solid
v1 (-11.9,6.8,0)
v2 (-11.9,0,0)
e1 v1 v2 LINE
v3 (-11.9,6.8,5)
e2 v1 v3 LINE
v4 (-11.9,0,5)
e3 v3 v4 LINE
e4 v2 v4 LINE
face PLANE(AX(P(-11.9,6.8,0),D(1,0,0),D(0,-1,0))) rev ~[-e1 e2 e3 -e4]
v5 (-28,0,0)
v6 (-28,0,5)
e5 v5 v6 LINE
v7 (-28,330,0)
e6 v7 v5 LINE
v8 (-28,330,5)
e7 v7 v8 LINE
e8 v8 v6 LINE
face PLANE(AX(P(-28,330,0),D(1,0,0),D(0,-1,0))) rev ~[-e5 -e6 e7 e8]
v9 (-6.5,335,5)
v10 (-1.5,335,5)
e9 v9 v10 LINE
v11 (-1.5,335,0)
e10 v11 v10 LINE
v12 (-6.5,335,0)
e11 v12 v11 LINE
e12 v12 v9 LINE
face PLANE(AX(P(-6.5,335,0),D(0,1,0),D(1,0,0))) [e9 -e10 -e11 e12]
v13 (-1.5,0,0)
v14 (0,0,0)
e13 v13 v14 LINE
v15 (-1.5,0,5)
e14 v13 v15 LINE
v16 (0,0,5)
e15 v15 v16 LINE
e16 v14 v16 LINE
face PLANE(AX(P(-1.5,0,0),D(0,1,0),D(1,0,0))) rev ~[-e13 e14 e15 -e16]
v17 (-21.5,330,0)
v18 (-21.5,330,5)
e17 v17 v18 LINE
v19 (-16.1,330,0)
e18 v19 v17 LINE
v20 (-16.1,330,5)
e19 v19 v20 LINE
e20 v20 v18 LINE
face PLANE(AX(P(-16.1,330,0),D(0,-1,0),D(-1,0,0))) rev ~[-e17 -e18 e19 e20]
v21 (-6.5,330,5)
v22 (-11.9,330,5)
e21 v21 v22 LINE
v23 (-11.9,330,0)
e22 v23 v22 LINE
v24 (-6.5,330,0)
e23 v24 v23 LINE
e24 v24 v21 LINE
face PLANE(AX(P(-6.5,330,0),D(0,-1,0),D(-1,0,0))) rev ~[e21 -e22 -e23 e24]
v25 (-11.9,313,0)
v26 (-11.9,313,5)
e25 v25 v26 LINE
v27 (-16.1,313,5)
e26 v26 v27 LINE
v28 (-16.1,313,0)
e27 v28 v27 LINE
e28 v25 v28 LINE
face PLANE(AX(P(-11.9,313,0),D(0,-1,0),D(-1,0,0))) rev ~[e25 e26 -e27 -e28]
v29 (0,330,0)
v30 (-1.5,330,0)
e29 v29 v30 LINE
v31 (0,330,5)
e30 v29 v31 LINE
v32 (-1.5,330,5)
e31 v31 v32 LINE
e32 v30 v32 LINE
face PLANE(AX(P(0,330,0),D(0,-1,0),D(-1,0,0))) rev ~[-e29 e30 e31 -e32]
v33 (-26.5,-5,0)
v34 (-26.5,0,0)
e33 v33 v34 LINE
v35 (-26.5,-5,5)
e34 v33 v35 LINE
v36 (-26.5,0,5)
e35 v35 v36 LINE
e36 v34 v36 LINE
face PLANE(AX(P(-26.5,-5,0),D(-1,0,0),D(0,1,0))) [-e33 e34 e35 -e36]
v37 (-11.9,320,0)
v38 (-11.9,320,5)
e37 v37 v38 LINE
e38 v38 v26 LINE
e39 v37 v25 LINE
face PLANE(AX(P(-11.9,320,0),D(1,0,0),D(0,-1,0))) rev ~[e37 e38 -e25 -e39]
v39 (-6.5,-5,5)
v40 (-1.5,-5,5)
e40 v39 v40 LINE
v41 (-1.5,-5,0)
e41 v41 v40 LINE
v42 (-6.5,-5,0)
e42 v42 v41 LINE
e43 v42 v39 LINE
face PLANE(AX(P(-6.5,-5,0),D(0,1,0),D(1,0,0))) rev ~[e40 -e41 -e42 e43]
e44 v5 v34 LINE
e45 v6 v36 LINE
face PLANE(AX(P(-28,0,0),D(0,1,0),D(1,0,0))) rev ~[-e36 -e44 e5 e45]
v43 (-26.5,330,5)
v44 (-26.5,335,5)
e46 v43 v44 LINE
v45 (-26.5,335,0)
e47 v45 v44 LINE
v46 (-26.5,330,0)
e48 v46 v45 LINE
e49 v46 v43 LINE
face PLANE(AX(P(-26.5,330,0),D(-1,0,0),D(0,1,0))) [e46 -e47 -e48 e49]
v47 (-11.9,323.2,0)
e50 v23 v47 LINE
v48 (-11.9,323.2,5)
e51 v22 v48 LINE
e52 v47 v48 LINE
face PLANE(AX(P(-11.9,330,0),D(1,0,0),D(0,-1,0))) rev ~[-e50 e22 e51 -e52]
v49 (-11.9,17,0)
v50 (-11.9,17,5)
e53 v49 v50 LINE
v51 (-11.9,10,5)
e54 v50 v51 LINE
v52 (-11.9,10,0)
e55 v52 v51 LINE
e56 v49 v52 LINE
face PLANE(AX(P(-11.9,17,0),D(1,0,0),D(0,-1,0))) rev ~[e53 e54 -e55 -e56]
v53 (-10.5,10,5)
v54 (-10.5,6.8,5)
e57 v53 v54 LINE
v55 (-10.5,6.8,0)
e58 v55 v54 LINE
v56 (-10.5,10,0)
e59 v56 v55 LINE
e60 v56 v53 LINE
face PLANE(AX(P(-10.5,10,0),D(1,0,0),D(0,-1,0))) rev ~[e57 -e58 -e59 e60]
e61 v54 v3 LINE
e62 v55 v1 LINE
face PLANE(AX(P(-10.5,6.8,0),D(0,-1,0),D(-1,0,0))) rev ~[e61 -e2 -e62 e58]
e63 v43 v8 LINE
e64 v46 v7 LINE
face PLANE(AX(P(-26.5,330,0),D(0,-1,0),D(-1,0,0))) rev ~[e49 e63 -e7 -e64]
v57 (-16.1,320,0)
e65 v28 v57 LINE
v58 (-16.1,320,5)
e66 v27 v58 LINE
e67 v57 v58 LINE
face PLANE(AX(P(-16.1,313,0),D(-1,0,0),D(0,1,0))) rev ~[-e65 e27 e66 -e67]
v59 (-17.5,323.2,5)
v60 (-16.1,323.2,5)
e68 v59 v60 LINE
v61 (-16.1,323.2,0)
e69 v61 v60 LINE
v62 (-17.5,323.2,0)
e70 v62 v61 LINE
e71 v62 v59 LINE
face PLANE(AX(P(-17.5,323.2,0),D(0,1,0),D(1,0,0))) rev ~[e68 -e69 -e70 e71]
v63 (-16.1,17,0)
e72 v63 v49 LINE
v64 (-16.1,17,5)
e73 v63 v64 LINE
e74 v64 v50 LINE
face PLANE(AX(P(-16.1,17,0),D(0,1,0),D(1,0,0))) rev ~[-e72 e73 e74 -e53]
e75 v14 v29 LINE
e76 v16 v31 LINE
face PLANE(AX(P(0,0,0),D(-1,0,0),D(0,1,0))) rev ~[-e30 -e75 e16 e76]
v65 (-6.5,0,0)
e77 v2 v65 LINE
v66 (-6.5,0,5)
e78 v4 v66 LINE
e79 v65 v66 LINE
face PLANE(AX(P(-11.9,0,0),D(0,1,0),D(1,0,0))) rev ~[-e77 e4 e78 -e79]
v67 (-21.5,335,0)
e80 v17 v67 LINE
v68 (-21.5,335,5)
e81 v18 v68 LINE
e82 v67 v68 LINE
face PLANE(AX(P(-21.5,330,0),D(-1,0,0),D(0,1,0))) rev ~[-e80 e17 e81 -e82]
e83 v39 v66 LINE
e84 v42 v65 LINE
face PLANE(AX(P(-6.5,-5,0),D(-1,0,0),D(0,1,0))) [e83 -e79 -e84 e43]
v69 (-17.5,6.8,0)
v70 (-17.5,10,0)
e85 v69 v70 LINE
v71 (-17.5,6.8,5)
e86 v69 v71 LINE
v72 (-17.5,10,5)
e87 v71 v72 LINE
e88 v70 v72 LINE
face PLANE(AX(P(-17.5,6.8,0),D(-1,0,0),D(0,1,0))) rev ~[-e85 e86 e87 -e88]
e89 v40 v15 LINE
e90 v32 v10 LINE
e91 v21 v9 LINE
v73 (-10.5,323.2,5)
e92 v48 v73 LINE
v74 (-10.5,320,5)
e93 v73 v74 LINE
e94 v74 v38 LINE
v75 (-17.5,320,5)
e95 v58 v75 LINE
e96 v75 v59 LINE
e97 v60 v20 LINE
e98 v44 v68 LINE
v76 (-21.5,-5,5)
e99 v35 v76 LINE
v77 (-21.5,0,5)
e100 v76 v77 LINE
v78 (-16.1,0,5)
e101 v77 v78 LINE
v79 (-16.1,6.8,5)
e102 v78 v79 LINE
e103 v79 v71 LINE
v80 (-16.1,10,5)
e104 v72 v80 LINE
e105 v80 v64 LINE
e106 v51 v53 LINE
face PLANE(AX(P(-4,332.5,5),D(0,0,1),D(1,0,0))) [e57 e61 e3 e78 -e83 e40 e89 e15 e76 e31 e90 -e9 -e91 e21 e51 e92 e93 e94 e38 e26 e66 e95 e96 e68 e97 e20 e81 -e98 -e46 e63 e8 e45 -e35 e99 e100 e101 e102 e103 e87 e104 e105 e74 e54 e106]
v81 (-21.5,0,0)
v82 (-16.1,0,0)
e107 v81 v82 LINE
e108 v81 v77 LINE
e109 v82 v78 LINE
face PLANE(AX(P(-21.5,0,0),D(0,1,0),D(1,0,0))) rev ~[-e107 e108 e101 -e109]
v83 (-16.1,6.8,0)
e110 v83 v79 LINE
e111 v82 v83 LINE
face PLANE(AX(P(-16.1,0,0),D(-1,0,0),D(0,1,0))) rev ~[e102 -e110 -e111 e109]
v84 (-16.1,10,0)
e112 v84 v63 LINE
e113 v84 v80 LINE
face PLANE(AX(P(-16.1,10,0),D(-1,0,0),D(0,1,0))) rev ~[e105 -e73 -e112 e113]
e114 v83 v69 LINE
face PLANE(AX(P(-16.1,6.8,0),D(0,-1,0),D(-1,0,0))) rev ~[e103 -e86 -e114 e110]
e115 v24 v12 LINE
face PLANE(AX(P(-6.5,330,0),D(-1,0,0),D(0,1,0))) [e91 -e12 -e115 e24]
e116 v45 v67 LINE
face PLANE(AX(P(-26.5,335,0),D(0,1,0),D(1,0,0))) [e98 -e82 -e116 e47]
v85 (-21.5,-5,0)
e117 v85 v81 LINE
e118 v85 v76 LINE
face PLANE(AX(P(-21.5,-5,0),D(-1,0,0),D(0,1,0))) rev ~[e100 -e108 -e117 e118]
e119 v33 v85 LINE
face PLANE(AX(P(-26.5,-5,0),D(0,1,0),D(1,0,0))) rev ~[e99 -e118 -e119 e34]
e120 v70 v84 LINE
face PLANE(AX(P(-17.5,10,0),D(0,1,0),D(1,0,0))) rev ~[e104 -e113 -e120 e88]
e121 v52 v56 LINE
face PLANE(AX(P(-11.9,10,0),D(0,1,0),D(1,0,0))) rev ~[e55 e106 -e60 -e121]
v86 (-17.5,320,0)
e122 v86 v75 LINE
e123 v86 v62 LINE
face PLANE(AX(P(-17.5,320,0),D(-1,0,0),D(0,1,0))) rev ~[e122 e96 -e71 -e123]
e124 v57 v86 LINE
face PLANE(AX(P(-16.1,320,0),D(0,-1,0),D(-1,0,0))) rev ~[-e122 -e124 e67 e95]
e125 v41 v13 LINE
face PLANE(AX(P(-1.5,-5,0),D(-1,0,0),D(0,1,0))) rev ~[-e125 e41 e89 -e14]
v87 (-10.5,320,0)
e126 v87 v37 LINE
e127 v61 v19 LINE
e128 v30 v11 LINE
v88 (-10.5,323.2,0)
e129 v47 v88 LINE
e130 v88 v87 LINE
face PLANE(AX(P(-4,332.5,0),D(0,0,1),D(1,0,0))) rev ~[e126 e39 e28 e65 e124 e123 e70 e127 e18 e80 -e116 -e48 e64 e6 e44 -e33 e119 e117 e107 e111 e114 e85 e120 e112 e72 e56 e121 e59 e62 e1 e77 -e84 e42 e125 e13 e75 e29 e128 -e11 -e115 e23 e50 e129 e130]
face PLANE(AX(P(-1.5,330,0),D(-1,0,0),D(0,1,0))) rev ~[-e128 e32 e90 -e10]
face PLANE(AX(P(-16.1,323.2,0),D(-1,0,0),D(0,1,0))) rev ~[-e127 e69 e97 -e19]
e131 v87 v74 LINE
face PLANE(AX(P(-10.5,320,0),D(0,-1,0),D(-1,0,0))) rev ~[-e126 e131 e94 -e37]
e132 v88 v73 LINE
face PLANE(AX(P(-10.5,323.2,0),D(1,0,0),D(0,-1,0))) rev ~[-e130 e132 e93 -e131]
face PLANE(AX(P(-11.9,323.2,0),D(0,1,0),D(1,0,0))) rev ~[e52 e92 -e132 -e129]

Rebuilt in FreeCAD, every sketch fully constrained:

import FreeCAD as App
import Part
import Sketcher
from FreeCAD import Vector
Q = App.Units.Quantity


def add_polygon(sketch, points):
    """Adds a closed chain of lines whose ends are joined by coincident constraints."""
    first, n = sketch.GeometryCount, len(points)
    for a, b in zip(points, points[1:] + points[:1]):
        sketch.addGeometry(Part.LineSegment(App.Vector(*a, 0), App.Vector(*b, 0)), False)
    for i in range(n):
        sketch.addConstraint(Sketcher.Constraint("Coincident", first + i, 2, first + (i + 1) % n, 1))

doc = App.newDocument("Part")
params = doc.addObject("Spreadsheet::Sheet", "Params")
for row, (alias, value) in enumerate([
    ("sketch1_width", "5 mm"),
    ("sketch1_height", "7 mm"),
    ("sketch1_height2", "330 mm"),
    ("sketch1_width2", "5.4 mm"),
    ("sketch1_width3", "1.4 mm"),
    ("pad1_length", "5 mm"),
], start=1):
    params.set(f"A{row}", alias)
    params.set(f"B{row}", "=" + value)
    params.setAlias(f"B{row}", alias)

body = doc.addObject("PartDesign::Body", "Body")

sketch1 = body.newObject("Sketcher::SketchObject", "Sketch")
sketch1.AttachmentSupport = (doc.getObject("XY_Plane"), [""])
sketch1.MapMode = "FlatFace"
add_polygon(sketch1, [(-6.5, 335), (-6.5, 330), (-11.9, 330), (-11.9, 323.2), (-10.5, 323.2), (-10.5, 320), (-11.9, 320), (-11.9, 313), (-16.1, 313), (-16.1, 320), (-17.5, 320), (-17.5, 323.2), (-16.1, 323.2), (-16.1, 330), (-21.5, 330), (-21.5, 335), (-26.5, 335), (-26.5, 330), (-28, 330), (-28, 0), (-26.5, 0), (-26.5, -5), (-21.5, -5), (-21.5, 0), (-16.1, 0), (-16.1, 6.8), (-17.5, 6.8), (-17.5, 10), (-16.1, 10), (-16.1, 17), (-11.9, 17), (-11.9, 10), (-10.5, 10), (-10.5, 6.8), (-11.9, 6.8), (-11.9, 0), (-6.5, 0), (-6.5, -5), (-1.5, -5), (-1.5, 0), (0, 0), (0, 330), (-1.5, 330), (-1.5, 335)])
sketch1.addConstraint([
    Sketcher.Constraint("Vertical", 0),
    Sketcher.Constraint("Horizontal", 1),
    Sketcher.Constraint("Vertical", 2),
    Sketcher.Constraint("Horizontal", 3),
    Sketcher.Constraint("Vertical", 4),
    Sketcher.Constraint("Horizontal", 5),
    Sketcher.Constraint("Vertical", 6),
    Sketcher.Constraint("Horizontal", 7),
    Sketcher.Constraint("Vertical", 8),
    Sketcher.Constraint("Horizontal", 9),
    Sketcher.Constraint("Vertical", 10),
    Sketcher.Constraint("Horizontal", 11),
    Sketcher.Constraint("Vertical", 12),
    Sketcher.Constraint("Horizontal", 13),
    Sketcher.Constraint("Vertical", 14),
    Sketcher.Constraint("Horizontal", 15),
    Sketcher.Constraint("Vertical", 16),
    Sketcher.Constraint("Horizontal", 17),
    Sketcher.Constraint("Vertical", 18),
    Sketcher.Constraint("Horizontal", 19),
    Sketcher.Constraint("Vertical", 20),
    Sketcher.Constraint("Horizontal", 21),
    Sketcher.Constraint("Vertical", 22),
    Sketcher.Constraint("Horizontal", 23),
    Sketcher.Constraint("Vertical", 24),
    Sketcher.Constraint("Horizontal", 25),
    Sketcher.Constraint("Vertical", 26),
    Sketcher.Constraint("Horizontal", 27),
    Sketcher.Constraint("Vertical", 28),
    Sketcher.Constraint("Horizontal", 29),
    Sketcher.Constraint("Vertical", 30),
    Sketcher.Constraint("Horizontal", 31),
    Sketcher.Constraint("Vertical", 32),
    Sketcher.Constraint("Horizontal", 33),
    Sketcher.Constraint("Vertical", 34),
    Sketcher.Constraint("Horizontal", 35),
    Sketcher.Constraint("Vertical", 36),
    Sketcher.Constraint("Horizontal", 37),
    Sketcher.Constraint("Vertical", 38),
    Sketcher.Constraint("Horizontal", 39),
    Sketcher.Constraint("Vertical", 40),
    Sketcher.Constraint("Horizontal", 41),
    Sketcher.Constraint("Vertical", 42),
    Sketcher.Constraint("Horizontal", 43),
    Sketcher.Constraint("Coincident", 39, 2, -1, 1),
    Sketcher.Constraint("PointOnObject", 18, 2, -1),
    Sketcher.Constraint("PointOnObject", 22, 2, -1),
    Sketcher.Constraint("PointOnObject", 34, 2, -1),
    Sketcher.Constraint("Horizontal", 5, 2, 8, 2),
    Sketcher.Constraint("Horizontal", 3, 2, 10, 2),
    Sketcher.Constraint("Horizontal", 1, 2, 12, 2),
    Sketcher.Constraint("Horizontal", 13, 2, 16, 2),
    Sketcher.Constraint("Horizontal", 27, 2, 30, 2),
    Sketcher.Constraint("Horizontal", 25, 2, 32, 2),
    Sketcher.Constraint("Horizontal", 21, 2, 36, 2),
    Sketcher.Constraint("Horizontal", 17, 2, 40, 2),
    Sketcher.Constraint("Horizontal", 15, 2, 42, 2),
    Sketcher.Constraint("Vertical", 2, 2, 5, 2),
    Sketcher.Constraint("Vertical", 8, 2, 11, 2),
    Sketcher.Constraint("Vertical", 16, 2, 19, 2),
    Sketcher.Constraint("Vertical", 14, 2, 21, 2),
    Sketcher.Constraint("Vertical", 12, 2, 23, 2),
    Sketcher.Constraint("Vertical", 10, 2, 25, 2),
    Sketcher.Constraint("Vertical", 24, 2, 27, 2),
    Sketcher.Constraint("Vertical", 6, 2, 29, 2),
    Sketcher.Constraint("Vertical", 4, 2, 31, 2),
    Sketcher.Constraint("Vertical", 30, 2, 33, 2),
    Sketcher.Constraint("Vertical", 0, 2, 35, 2),
    Sketcher.Constraint("Vertical", 38, 2, 41, 2),
    Sketcher.Constraint("Equal", 5, 9),
    Sketcher.Constraint("Equal", 1, 13),
    Sketcher.Constraint("Equal", 21, 37),
    Sketcher.Constraint("Equal", 19, 39),
    Sketcher.Constraint("Equal", 43, 0),
    Sketcher.Constraint("Equal", 16, 20),
    Sketcher.Constraint("Equal", 12, 24),
    Sketcher.Constraint("Equal", 10, 26),
    Sketcher.Constraint("Equal", 8, 28),
    Sketcher.Constraint("DistanceX", 15, 2, 15, 1, Q("5 mm")),
    Sketcher.Constraint("DistanceY", 6, 2, 6, 1, Q("7 mm")),
    Sketcher.Constraint("DistanceY", 18, 2, 18, 1, Q("330 mm")),
    Sketcher.Constraint("DistanceX", 1, 2, 1, 1, Q("5.4 mm")),
    Sketcher.Constraint("DistanceX", 3, 1, 3, 2, Q("1.4 mm")),
    Sketcher.Constraint("DistanceX", 7, 2, 7, 1, Q("4.2 mm")),
    Sketcher.Constraint("DistanceX", 17, 2, 17, 1, Q("1.5 mm")),
    Sketcher.Constraint("DistanceY", 2, 2, 2, 1, Q("6.8 mm")),
    Sketcher.Constraint("DistanceY", 4, 2, 4, 1, Q("3.2 mm")),
])
sketch1.setExpression("Constraints[122]", "Params.sketch1_width")
sketch1.setExpression("Constraints[123]", "Params.sketch1_height")
sketch1.setExpression("Constraints[124]", "Params.sketch1_height2")
sketch1.setExpression("Constraints[125]", "Params.sketch1_width2")
sketch1.setExpression("Constraints[126]", "Params.sketch1_width3")
pad1 = body.newObject("PartDesign::Pad", "Pad")
pad1.Profile = sketch1
pad1.setExpression("Length", "Params.pad1_length")

doc.recompute()
